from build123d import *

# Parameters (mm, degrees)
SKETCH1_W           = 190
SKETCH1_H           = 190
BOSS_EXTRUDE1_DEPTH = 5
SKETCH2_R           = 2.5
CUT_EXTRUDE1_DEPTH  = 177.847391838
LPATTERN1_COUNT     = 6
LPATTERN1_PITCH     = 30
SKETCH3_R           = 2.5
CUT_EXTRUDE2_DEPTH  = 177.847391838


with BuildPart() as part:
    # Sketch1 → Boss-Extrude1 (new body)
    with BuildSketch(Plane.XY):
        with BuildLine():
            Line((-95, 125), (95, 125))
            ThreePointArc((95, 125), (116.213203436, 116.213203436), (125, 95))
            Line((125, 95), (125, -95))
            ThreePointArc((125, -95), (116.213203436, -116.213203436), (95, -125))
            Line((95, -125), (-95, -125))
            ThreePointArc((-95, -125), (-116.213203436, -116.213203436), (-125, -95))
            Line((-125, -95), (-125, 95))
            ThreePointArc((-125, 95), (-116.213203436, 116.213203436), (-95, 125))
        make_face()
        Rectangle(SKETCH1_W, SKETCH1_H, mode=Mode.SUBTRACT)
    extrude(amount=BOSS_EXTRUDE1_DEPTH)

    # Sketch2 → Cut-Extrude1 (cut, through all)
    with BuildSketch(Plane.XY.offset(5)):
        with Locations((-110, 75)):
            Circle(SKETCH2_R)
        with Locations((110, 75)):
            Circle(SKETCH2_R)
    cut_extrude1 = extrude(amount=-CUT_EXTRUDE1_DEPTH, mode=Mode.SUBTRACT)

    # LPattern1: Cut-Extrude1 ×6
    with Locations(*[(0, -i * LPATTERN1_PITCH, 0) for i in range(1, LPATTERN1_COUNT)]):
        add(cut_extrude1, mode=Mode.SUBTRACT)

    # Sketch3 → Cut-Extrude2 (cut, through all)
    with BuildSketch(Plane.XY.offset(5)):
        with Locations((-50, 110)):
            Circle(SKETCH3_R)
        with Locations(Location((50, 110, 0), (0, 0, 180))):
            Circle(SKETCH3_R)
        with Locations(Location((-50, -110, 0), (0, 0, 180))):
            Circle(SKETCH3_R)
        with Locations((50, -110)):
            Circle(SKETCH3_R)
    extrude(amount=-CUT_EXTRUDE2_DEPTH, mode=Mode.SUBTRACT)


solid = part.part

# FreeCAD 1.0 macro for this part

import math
import FreeCAD as App
import Part
import Sketcher

doc = App.newDocument("Part")
body = doc.addObject("PartDesign::Body", "Body")

sketch1 = body.newObject("Sketcher::SketchObject", "Sketch")
sketch1.AttachmentSupport = (doc.getObject("XY_Plane"), [""])
sketch1.MapMode = "FlatFace"
sketch1.addGeometry([
    Part.LineSegment(App.Vector(95, 125, 0), App.Vector(-95, 125, 0)),
    Part.ArcOfCircle(Part.Circle(App.Vector(-95, 95, 0), App.Vector(0, 0, 1), 30), math.radians(90), math.radians(180)),
    Part.LineSegment(App.Vector(-125, 95, 0), App.Vector(-125, -95, 0)),
    Part.ArcOfCircle(Part.Circle(App.Vector(-95, -95, 0), App.Vector(0, 0, 1), 30), math.radians(180), math.radians(270)),
    Part.LineSegment(App.Vector(-95, -125, 0), App.Vector(95, -125, 0)),
    Part.ArcOfCircle(Part.Circle(App.Vector(95, -95, 0), App.Vector(0, 0, 1), 30), math.radians(-90), math.radians(0)),
    Part.LineSegment(App.Vector(125, -95, 0), App.Vector(125, 95, 0)),
    Part.ArcOfCircle(Part.Circle(App.Vector(95, 95, 0), App.Vector(0, 0, 1), 30), math.radians(0), math.radians(90)),
    Part.LineSegment(App.Vector(-95, -95, 0), App.Vector(-95, 95, 0)),
    Part.LineSegment(App.Vector(-95, 95, 0), App.Vector(95, 95, 0)),
    Part.LineSegment(App.Vector(95, 95, 0), App.Vector(95, -95, 0)),
    Part.LineSegment(App.Vector(95, -95, 0), App.Vector(-95, -95, 0)),
], False)
sketch1.addConstraint([
    Sketcher.Constraint("Tangent", 0, 2, 1, 1),
    Sketcher.Constraint("Tangent", 1, 2, 2, 1),
    Sketcher.Constraint("Tangent", 2, 2, 3, 1),
    Sketcher.Constraint("Tangent", 3, 2, 4, 1),
    Sketcher.Constraint("Tangent", 4, 2, 5, 1),
    Sketcher.Constraint("Tangent", 5, 2, 6, 1),
    Sketcher.Constraint("Tangent", 6, 2, 7, 1),
    Sketcher.Constraint("Tangent", 7, 2, 0, 1),
    Sketcher.Constraint("Coincident", 8, 2, 9, 1),
    Sketcher.Constraint("Coincident", 9, 2, 10, 1),
    Sketcher.Constraint("Coincident", 10, 2, 11, 1),
    Sketcher.Constraint("Coincident", 11, 2, 8, 1),
    Sketcher.Constraint("Horizontal", 0),
    Sketcher.Constraint("Vertical", 2),
    Sketcher.Constraint("Horizontal", 4),
    Sketcher.Constraint("Vertical", 6),
    Sketcher.Constraint("Vertical", 8),
    Sketcher.Constraint("Horizontal", 9),
    Sketcher.Constraint("Vertical", 10),
    Sketcher.Constraint("Horizontal", 11),
    Sketcher.Constraint("Coincident", 8, 2, 1, 3),
    Sketcher.Constraint("Coincident", 9, 2, 7, 3),
    Sketcher.Constraint("Coincident", 10, 2, 5, 3),
    Sketcher.Constraint("Equal", 1, 3),
    Sketcher.Constraint("Symmetric", 1, 3, 5, 3, -1, 1),
    Sketcher.Constraint("Equal", 11, 2),
    Sketcher.Constraint("Radius", 1, 30.0),
    Sketcher.Constraint("DistanceX", 0, 2, 0, 1, 190.0),
])
pad1 = body.newObject("PartDesign::Pad", "Pad")
pad1.Profile = sketch1
pad1.Length = 5

sketch2 = body.newObject("Sketcher::SketchObject", "Sketch001")
sketch2.AttachmentSupport = (doc.getObject("XY_Plane"), [""])
sketch2.MapMode = "FlatFace"
sketch2.AttachmentOffset = App.Placement(App.Vector(0, 0, 5), App.Rotation())
sketch2.addGeometry([
    Part.Circle(App.Vector(-110, 75, 0), App.Vector(0, 0, 1), 2.5),
    Part.Circle(App.Vector(110, 75, 0), App.Vector(0, 0, 1), 2.5),
], False)
sketch2.addConstraint([
    Sketcher.Constraint("Equal", 0, 1),
    Sketcher.Constraint("Symmetric", 0, 3, 1, 3, -2),
    Sketcher.Constraint("Diameter", 0, 5.0),
    Sketcher.Constraint("DistanceX", 0, 3, -1, 1, 110.0),
    Sketcher.Constraint("DistanceY", -1, 1, 0, 3, 75.0),
])
pocket1 = body.newObject("PartDesign::Pocket", "Pocket")
pocket1.Profile = sketch2
pocket1.Type = "ThroughAll"
doc.recompute()

linearpattern = body.newObject("PartDesign::LinearPattern", "LinearPattern")
linearpattern.Originals = [pocket1]
linearpattern.Direction = (doc.getObject("Y_Axis"), [""])
linearpattern.Mode = "offset"
linearpattern.Offset = 30
linearpattern.Occurrences = 6
linearpattern.Reversed = True
body.Tip = linearpattern

sketch3 = body.newObject("Sketcher::SketchObject", "Sketch002")
sketch3.AttachmentSupport = (doc.getObject("XY_Plane"), [""])
sketch3.MapMode = "FlatFace"
sketch3.AttachmentOffset = App.Placement(App.Vector(0, 0, 5), App.Rotation())
sketch3.addGeometry([
    Part.Circle(App.Vector(-50, 110, 0), App.Vector(0, 0, 1), 2.5),
    Part.Circle(App.Vector(50, 110, 0), App.Vector(0, 0, 1), 2.5),
    Part.Circle(App.Vector(-50, -110, 0), App.Vector(0, 0, 1), 2.5),
    Part.Circle(App.Vector(50, -110, 0), App.Vector(0, 0, 1), 2.5),
], False)
sketch3.addConstraint([
    Sketcher.Constraint("Equal", 0, 1),
    Sketcher.Constraint("Equal", 1, 2),
    Sketcher.Constraint("Equal", 2, 3),
    Sketcher.Constraint("Symmetric", 1, 3, 2, 3, -1, 1),
    Sketcher.Constraint("Symmetric", 0, 3, 3, 3, -1, 1),
    Sketcher.Constraint("Symmetric", 0, 3, 1, 3, -2),
    Sketcher.Constraint("Diameter", 0, 5.0),
    Sketcher.Constraint("DistanceX", 0, 3, -1, 1, 50.0),
    Sketcher.Constraint("DistanceY", -1, 1, 0, 3, 110.0),
])
pocket2 = body.newObject("PartDesign::Pocket", "Pocket001")
pocket2.Profile = sketch3
pocket2.Type = "ThroughAll"

doc.recompute()
